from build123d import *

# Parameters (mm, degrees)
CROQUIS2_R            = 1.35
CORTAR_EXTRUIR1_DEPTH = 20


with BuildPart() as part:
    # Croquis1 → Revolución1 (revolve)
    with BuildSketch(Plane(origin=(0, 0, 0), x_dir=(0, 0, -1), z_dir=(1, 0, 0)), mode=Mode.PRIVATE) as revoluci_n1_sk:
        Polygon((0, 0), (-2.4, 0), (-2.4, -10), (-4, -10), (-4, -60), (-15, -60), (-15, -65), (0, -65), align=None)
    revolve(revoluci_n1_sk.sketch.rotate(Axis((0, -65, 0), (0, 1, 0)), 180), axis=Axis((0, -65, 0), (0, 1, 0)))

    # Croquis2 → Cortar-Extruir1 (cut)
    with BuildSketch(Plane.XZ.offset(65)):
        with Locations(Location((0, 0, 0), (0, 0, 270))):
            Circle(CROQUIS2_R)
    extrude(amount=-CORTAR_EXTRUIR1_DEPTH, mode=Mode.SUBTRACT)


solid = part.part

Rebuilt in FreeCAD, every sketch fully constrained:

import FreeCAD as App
import Part
import Sketcher
from FreeCAD import Vector
Q = App.Units.Quantity


def add_polygon(sketch, points):
    """Adds a closed chain of lines whose ends are joined by coincident constraints."""
    first, n = sketch.GeometryCount, len(points)
    for a, b in zip(points, points[1:] + points[:1]):
        sketch.addGeometry(Part.LineSegment(App.Vector(*a, 0), App.Vector(*b, 0)), False)
    for i in range(n):
        sketch.addConstraint(Sketcher.Constraint("Coincident", first + i, 2, first + (i + 1) % n, 1))

doc = App.newDocument("Part")
body = doc.addObject("PartDesign::Body", "Body")

sketch1 = body.newObject("Sketcher::SketchObject", "Sketch")
sketch1.AttachmentSupport = (doc.getObject("YZ_Plane"), [""])
sketch1.MapMode = "FlatFace"
add_polygon(sketch1, [(0, 0), (0, 2.4), (-10, 2.4), (-10, 4), (-60, 4), (-60, 15), (-65, 15), (-65, 0)])
sketch1.addConstraint(Sketcher.Constraint("Vertical", 0))
sketch1.addConstraint(Sketcher.Constraint("Horizontal", 1))
sketch1.addConstraint(Sketcher.Constraint("Vertical", 2))
sketch1.addConstraint(Sketcher.Constraint("Horizontal", 3))
sketch1.addConstraint(Sketcher.Constraint("Vertical", 4))
sketch1.addConstraint(Sketcher.Constraint("Horizontal", 5))
sketch1.addConstraint(Sketcher.Constraint("Vertical", 6))
sketch1.addConstraint(Sketcher.Constraint("Horizontal", 7))
sketch1.addConstraint(Sketcher.Constraint("Coincident", 7, 2, -1, 1))
sketch1.addConstraint(Sketcher.Constraint("DistanceX", 1, 2, 1, 1, Q("10 mm")))
sketch1.addConstraint(Sketcher.Constraint("DistanceX", 3, 2, 3, 1, Q("50 mm")))
sketch1.addConstraint(Sketcher.Constraint("DistanceX", 5, 2, 5, 1, Q("5 mm")))
sketch1.addConstraint(Sketcher.Constraint("DistanceY", 4, 1, 4, 2, Q("11 mm")))
sketch1.addConstraint(Sketcher.Constraint("DistanceY", 6, 2, 6, 1, Q("15 mm")))
sketch1.addConstraint(Sketcher.Constraint("DistanceY", 0, 1, 0, 2, Q("2.4 mm")))
revolution = body.newObject("PartDesign::Revolution", "Revolution")
revolution.Profile = sketch1
revolution.ReferenceAxis = (sketch1, ["H_Axis"])
revolution.Angle = 360

sketch2 = body.newObject("Sketcher::SketchObject", "Sketch001")
sketch2.AttachmentSupport = (doc.getObject("XZ_Plane"), [""])
sketch2.MapMode = "FlatFace"
sketch2.AttachmentOffset = App.Placement(Vector(0, 0, 65), App.Rotation())
sketch2.addGeometry(Part.Circle(Vector(0, 0, 0), Vector(0, 0, 1), 1.35), False)
sketch2.addConstraint(Sketcher.Constraint("Coincident", 0, 3, -1, 1))
sketch2.addConstraint(Sketcher.Constraint("Diameter", 0, Q("2.7 mm")))
pocket1 = body.newObject("PartDesign::Pocket", "Pocket")
pocket1.Profile = sketch2
pocket1.Length = 20

doc.recompute()
